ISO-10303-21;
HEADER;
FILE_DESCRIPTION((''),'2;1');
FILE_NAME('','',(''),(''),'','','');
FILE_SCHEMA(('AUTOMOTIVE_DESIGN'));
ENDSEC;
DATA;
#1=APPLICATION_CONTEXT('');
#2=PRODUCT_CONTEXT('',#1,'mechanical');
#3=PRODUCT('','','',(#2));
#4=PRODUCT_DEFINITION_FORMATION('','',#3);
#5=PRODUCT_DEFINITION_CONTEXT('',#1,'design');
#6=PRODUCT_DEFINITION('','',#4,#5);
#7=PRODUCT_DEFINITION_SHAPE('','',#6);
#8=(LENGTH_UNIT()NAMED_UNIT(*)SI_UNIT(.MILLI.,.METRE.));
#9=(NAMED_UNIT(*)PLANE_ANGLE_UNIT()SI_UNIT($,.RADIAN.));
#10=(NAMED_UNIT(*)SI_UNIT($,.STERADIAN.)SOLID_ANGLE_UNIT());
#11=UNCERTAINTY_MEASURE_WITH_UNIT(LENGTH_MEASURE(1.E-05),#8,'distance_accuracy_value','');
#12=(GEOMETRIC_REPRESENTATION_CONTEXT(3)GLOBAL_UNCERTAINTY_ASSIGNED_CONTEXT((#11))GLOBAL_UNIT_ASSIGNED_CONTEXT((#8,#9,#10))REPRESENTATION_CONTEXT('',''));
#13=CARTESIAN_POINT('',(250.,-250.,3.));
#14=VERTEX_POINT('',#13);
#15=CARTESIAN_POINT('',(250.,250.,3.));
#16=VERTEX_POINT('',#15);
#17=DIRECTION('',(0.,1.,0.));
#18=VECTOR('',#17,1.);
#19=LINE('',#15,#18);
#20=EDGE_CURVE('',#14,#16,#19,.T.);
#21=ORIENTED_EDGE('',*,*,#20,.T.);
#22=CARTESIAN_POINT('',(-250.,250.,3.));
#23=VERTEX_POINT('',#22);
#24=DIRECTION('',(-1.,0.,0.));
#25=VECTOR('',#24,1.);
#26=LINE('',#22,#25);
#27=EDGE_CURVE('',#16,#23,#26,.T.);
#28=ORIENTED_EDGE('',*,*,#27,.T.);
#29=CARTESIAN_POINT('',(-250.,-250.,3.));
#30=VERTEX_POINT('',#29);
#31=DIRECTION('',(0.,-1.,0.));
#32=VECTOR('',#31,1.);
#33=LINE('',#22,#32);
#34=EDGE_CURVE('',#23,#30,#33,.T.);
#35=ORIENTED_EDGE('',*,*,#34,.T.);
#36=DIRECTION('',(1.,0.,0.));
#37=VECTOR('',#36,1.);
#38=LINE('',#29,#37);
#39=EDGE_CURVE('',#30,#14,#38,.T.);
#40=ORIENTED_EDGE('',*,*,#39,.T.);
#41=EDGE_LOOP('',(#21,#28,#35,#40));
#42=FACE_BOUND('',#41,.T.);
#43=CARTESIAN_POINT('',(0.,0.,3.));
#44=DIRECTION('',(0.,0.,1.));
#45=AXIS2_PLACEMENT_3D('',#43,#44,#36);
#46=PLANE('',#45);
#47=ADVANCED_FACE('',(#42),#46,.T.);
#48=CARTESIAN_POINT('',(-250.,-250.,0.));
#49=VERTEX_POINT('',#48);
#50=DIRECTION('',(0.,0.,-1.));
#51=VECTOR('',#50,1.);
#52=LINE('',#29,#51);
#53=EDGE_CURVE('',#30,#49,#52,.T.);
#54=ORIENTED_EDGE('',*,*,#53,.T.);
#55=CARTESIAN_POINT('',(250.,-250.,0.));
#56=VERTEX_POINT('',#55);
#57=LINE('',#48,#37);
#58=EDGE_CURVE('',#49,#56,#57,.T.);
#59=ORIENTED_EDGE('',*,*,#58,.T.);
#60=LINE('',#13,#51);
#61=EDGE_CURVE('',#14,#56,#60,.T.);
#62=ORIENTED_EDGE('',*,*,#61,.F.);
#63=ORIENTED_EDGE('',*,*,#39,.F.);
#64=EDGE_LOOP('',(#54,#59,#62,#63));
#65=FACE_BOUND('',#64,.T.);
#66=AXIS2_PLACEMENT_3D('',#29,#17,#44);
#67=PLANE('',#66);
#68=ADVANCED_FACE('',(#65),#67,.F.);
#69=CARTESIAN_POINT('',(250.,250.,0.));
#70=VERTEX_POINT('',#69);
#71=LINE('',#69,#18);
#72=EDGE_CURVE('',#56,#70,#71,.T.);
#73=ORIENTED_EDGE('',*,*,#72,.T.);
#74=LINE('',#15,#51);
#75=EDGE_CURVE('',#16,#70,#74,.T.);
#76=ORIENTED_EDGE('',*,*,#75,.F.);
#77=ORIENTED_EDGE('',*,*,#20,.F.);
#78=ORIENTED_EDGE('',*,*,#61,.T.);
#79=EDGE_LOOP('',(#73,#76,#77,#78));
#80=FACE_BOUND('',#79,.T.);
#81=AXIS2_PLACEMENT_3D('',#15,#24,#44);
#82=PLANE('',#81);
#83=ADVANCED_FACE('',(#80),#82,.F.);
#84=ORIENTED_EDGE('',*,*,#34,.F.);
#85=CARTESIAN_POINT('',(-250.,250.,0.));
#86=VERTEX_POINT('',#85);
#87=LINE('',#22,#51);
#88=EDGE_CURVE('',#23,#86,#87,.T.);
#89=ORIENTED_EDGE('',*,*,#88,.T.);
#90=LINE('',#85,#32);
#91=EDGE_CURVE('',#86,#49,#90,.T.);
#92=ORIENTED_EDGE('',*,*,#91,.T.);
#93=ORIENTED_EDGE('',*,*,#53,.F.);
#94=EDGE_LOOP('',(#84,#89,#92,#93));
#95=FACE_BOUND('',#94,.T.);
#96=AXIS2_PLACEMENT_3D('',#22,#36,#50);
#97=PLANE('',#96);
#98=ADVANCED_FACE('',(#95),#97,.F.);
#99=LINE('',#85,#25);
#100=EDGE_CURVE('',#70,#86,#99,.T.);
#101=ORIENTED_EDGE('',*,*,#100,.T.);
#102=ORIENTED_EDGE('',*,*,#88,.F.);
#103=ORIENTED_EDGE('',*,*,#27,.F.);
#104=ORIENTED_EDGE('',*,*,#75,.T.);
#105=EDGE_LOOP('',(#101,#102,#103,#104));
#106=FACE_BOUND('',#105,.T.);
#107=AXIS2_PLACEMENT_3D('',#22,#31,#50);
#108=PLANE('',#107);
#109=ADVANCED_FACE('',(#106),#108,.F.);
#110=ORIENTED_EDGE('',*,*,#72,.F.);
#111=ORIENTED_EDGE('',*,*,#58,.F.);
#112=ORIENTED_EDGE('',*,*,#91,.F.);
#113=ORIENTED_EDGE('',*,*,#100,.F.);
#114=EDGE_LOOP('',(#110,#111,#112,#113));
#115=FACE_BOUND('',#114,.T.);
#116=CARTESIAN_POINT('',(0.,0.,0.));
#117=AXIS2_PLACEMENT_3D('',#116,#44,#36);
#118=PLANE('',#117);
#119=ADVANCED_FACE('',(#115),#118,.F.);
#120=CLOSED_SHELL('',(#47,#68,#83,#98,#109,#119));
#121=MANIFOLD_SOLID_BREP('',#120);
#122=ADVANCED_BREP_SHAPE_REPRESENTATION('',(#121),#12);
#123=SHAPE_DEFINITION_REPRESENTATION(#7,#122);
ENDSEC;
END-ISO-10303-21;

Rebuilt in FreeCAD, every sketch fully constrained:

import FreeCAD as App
import Part
import Sketcher
from FreeCAD import Vector


def add_polygon(sketch, points):
    """Adds a closed chain of lines whose ends are joined by coincident constraints."""
    first, n = sketch.GeometryCount, len(points)
    for a, b in zip(points, points[1:] + points[:1]):
        sketch.addGeometry(Part.LineSegment(App.Vector(*a, 0), App.Vector(*b, 0)), False)
    for i in range(n):
        sketch.addConstraint(Sketcher.Constraint("Coincident", first + i, 2, first + (i + 1) % n, 1))

doc = App.newDocument("Part")
body = doc.addObject("PartDesign::Body", "Body")

sketch1 = body.newObject("Sketcher::SketchObject", "Sketch")
sketch1.AttachmentSupport = (doc.getObject("XY_Plane"), [""])
sketch1.MapMode = "FlatFace"
add_polygon(sketch1, [(-250, 250), (-250, -250), (250, -250), (250, 250)])
sketch1.addConstraint([
    Sketcher.Constraint("Vertical", 0),
    Sketcher.Constraint("Horizontal", 1),
    Sketcher.Constraint("Vertical", 2),
    Sketcher.Constraint("Horizontal", 3),
    Sketcher.Constraint("Symmetric", 0, 2, 2, 2, -1, 1),
    Sketcher.Constraint("Equal", 3, 0),
    Sketcher.Constraint("DistanceX", 1, 1, 1, 2, 500.0),
])
pad1 = body.newObject("PartDesign::Pad", "Pad")
pad1.Profile = sketch1
pad1.Length = 3

doc.recompute()
